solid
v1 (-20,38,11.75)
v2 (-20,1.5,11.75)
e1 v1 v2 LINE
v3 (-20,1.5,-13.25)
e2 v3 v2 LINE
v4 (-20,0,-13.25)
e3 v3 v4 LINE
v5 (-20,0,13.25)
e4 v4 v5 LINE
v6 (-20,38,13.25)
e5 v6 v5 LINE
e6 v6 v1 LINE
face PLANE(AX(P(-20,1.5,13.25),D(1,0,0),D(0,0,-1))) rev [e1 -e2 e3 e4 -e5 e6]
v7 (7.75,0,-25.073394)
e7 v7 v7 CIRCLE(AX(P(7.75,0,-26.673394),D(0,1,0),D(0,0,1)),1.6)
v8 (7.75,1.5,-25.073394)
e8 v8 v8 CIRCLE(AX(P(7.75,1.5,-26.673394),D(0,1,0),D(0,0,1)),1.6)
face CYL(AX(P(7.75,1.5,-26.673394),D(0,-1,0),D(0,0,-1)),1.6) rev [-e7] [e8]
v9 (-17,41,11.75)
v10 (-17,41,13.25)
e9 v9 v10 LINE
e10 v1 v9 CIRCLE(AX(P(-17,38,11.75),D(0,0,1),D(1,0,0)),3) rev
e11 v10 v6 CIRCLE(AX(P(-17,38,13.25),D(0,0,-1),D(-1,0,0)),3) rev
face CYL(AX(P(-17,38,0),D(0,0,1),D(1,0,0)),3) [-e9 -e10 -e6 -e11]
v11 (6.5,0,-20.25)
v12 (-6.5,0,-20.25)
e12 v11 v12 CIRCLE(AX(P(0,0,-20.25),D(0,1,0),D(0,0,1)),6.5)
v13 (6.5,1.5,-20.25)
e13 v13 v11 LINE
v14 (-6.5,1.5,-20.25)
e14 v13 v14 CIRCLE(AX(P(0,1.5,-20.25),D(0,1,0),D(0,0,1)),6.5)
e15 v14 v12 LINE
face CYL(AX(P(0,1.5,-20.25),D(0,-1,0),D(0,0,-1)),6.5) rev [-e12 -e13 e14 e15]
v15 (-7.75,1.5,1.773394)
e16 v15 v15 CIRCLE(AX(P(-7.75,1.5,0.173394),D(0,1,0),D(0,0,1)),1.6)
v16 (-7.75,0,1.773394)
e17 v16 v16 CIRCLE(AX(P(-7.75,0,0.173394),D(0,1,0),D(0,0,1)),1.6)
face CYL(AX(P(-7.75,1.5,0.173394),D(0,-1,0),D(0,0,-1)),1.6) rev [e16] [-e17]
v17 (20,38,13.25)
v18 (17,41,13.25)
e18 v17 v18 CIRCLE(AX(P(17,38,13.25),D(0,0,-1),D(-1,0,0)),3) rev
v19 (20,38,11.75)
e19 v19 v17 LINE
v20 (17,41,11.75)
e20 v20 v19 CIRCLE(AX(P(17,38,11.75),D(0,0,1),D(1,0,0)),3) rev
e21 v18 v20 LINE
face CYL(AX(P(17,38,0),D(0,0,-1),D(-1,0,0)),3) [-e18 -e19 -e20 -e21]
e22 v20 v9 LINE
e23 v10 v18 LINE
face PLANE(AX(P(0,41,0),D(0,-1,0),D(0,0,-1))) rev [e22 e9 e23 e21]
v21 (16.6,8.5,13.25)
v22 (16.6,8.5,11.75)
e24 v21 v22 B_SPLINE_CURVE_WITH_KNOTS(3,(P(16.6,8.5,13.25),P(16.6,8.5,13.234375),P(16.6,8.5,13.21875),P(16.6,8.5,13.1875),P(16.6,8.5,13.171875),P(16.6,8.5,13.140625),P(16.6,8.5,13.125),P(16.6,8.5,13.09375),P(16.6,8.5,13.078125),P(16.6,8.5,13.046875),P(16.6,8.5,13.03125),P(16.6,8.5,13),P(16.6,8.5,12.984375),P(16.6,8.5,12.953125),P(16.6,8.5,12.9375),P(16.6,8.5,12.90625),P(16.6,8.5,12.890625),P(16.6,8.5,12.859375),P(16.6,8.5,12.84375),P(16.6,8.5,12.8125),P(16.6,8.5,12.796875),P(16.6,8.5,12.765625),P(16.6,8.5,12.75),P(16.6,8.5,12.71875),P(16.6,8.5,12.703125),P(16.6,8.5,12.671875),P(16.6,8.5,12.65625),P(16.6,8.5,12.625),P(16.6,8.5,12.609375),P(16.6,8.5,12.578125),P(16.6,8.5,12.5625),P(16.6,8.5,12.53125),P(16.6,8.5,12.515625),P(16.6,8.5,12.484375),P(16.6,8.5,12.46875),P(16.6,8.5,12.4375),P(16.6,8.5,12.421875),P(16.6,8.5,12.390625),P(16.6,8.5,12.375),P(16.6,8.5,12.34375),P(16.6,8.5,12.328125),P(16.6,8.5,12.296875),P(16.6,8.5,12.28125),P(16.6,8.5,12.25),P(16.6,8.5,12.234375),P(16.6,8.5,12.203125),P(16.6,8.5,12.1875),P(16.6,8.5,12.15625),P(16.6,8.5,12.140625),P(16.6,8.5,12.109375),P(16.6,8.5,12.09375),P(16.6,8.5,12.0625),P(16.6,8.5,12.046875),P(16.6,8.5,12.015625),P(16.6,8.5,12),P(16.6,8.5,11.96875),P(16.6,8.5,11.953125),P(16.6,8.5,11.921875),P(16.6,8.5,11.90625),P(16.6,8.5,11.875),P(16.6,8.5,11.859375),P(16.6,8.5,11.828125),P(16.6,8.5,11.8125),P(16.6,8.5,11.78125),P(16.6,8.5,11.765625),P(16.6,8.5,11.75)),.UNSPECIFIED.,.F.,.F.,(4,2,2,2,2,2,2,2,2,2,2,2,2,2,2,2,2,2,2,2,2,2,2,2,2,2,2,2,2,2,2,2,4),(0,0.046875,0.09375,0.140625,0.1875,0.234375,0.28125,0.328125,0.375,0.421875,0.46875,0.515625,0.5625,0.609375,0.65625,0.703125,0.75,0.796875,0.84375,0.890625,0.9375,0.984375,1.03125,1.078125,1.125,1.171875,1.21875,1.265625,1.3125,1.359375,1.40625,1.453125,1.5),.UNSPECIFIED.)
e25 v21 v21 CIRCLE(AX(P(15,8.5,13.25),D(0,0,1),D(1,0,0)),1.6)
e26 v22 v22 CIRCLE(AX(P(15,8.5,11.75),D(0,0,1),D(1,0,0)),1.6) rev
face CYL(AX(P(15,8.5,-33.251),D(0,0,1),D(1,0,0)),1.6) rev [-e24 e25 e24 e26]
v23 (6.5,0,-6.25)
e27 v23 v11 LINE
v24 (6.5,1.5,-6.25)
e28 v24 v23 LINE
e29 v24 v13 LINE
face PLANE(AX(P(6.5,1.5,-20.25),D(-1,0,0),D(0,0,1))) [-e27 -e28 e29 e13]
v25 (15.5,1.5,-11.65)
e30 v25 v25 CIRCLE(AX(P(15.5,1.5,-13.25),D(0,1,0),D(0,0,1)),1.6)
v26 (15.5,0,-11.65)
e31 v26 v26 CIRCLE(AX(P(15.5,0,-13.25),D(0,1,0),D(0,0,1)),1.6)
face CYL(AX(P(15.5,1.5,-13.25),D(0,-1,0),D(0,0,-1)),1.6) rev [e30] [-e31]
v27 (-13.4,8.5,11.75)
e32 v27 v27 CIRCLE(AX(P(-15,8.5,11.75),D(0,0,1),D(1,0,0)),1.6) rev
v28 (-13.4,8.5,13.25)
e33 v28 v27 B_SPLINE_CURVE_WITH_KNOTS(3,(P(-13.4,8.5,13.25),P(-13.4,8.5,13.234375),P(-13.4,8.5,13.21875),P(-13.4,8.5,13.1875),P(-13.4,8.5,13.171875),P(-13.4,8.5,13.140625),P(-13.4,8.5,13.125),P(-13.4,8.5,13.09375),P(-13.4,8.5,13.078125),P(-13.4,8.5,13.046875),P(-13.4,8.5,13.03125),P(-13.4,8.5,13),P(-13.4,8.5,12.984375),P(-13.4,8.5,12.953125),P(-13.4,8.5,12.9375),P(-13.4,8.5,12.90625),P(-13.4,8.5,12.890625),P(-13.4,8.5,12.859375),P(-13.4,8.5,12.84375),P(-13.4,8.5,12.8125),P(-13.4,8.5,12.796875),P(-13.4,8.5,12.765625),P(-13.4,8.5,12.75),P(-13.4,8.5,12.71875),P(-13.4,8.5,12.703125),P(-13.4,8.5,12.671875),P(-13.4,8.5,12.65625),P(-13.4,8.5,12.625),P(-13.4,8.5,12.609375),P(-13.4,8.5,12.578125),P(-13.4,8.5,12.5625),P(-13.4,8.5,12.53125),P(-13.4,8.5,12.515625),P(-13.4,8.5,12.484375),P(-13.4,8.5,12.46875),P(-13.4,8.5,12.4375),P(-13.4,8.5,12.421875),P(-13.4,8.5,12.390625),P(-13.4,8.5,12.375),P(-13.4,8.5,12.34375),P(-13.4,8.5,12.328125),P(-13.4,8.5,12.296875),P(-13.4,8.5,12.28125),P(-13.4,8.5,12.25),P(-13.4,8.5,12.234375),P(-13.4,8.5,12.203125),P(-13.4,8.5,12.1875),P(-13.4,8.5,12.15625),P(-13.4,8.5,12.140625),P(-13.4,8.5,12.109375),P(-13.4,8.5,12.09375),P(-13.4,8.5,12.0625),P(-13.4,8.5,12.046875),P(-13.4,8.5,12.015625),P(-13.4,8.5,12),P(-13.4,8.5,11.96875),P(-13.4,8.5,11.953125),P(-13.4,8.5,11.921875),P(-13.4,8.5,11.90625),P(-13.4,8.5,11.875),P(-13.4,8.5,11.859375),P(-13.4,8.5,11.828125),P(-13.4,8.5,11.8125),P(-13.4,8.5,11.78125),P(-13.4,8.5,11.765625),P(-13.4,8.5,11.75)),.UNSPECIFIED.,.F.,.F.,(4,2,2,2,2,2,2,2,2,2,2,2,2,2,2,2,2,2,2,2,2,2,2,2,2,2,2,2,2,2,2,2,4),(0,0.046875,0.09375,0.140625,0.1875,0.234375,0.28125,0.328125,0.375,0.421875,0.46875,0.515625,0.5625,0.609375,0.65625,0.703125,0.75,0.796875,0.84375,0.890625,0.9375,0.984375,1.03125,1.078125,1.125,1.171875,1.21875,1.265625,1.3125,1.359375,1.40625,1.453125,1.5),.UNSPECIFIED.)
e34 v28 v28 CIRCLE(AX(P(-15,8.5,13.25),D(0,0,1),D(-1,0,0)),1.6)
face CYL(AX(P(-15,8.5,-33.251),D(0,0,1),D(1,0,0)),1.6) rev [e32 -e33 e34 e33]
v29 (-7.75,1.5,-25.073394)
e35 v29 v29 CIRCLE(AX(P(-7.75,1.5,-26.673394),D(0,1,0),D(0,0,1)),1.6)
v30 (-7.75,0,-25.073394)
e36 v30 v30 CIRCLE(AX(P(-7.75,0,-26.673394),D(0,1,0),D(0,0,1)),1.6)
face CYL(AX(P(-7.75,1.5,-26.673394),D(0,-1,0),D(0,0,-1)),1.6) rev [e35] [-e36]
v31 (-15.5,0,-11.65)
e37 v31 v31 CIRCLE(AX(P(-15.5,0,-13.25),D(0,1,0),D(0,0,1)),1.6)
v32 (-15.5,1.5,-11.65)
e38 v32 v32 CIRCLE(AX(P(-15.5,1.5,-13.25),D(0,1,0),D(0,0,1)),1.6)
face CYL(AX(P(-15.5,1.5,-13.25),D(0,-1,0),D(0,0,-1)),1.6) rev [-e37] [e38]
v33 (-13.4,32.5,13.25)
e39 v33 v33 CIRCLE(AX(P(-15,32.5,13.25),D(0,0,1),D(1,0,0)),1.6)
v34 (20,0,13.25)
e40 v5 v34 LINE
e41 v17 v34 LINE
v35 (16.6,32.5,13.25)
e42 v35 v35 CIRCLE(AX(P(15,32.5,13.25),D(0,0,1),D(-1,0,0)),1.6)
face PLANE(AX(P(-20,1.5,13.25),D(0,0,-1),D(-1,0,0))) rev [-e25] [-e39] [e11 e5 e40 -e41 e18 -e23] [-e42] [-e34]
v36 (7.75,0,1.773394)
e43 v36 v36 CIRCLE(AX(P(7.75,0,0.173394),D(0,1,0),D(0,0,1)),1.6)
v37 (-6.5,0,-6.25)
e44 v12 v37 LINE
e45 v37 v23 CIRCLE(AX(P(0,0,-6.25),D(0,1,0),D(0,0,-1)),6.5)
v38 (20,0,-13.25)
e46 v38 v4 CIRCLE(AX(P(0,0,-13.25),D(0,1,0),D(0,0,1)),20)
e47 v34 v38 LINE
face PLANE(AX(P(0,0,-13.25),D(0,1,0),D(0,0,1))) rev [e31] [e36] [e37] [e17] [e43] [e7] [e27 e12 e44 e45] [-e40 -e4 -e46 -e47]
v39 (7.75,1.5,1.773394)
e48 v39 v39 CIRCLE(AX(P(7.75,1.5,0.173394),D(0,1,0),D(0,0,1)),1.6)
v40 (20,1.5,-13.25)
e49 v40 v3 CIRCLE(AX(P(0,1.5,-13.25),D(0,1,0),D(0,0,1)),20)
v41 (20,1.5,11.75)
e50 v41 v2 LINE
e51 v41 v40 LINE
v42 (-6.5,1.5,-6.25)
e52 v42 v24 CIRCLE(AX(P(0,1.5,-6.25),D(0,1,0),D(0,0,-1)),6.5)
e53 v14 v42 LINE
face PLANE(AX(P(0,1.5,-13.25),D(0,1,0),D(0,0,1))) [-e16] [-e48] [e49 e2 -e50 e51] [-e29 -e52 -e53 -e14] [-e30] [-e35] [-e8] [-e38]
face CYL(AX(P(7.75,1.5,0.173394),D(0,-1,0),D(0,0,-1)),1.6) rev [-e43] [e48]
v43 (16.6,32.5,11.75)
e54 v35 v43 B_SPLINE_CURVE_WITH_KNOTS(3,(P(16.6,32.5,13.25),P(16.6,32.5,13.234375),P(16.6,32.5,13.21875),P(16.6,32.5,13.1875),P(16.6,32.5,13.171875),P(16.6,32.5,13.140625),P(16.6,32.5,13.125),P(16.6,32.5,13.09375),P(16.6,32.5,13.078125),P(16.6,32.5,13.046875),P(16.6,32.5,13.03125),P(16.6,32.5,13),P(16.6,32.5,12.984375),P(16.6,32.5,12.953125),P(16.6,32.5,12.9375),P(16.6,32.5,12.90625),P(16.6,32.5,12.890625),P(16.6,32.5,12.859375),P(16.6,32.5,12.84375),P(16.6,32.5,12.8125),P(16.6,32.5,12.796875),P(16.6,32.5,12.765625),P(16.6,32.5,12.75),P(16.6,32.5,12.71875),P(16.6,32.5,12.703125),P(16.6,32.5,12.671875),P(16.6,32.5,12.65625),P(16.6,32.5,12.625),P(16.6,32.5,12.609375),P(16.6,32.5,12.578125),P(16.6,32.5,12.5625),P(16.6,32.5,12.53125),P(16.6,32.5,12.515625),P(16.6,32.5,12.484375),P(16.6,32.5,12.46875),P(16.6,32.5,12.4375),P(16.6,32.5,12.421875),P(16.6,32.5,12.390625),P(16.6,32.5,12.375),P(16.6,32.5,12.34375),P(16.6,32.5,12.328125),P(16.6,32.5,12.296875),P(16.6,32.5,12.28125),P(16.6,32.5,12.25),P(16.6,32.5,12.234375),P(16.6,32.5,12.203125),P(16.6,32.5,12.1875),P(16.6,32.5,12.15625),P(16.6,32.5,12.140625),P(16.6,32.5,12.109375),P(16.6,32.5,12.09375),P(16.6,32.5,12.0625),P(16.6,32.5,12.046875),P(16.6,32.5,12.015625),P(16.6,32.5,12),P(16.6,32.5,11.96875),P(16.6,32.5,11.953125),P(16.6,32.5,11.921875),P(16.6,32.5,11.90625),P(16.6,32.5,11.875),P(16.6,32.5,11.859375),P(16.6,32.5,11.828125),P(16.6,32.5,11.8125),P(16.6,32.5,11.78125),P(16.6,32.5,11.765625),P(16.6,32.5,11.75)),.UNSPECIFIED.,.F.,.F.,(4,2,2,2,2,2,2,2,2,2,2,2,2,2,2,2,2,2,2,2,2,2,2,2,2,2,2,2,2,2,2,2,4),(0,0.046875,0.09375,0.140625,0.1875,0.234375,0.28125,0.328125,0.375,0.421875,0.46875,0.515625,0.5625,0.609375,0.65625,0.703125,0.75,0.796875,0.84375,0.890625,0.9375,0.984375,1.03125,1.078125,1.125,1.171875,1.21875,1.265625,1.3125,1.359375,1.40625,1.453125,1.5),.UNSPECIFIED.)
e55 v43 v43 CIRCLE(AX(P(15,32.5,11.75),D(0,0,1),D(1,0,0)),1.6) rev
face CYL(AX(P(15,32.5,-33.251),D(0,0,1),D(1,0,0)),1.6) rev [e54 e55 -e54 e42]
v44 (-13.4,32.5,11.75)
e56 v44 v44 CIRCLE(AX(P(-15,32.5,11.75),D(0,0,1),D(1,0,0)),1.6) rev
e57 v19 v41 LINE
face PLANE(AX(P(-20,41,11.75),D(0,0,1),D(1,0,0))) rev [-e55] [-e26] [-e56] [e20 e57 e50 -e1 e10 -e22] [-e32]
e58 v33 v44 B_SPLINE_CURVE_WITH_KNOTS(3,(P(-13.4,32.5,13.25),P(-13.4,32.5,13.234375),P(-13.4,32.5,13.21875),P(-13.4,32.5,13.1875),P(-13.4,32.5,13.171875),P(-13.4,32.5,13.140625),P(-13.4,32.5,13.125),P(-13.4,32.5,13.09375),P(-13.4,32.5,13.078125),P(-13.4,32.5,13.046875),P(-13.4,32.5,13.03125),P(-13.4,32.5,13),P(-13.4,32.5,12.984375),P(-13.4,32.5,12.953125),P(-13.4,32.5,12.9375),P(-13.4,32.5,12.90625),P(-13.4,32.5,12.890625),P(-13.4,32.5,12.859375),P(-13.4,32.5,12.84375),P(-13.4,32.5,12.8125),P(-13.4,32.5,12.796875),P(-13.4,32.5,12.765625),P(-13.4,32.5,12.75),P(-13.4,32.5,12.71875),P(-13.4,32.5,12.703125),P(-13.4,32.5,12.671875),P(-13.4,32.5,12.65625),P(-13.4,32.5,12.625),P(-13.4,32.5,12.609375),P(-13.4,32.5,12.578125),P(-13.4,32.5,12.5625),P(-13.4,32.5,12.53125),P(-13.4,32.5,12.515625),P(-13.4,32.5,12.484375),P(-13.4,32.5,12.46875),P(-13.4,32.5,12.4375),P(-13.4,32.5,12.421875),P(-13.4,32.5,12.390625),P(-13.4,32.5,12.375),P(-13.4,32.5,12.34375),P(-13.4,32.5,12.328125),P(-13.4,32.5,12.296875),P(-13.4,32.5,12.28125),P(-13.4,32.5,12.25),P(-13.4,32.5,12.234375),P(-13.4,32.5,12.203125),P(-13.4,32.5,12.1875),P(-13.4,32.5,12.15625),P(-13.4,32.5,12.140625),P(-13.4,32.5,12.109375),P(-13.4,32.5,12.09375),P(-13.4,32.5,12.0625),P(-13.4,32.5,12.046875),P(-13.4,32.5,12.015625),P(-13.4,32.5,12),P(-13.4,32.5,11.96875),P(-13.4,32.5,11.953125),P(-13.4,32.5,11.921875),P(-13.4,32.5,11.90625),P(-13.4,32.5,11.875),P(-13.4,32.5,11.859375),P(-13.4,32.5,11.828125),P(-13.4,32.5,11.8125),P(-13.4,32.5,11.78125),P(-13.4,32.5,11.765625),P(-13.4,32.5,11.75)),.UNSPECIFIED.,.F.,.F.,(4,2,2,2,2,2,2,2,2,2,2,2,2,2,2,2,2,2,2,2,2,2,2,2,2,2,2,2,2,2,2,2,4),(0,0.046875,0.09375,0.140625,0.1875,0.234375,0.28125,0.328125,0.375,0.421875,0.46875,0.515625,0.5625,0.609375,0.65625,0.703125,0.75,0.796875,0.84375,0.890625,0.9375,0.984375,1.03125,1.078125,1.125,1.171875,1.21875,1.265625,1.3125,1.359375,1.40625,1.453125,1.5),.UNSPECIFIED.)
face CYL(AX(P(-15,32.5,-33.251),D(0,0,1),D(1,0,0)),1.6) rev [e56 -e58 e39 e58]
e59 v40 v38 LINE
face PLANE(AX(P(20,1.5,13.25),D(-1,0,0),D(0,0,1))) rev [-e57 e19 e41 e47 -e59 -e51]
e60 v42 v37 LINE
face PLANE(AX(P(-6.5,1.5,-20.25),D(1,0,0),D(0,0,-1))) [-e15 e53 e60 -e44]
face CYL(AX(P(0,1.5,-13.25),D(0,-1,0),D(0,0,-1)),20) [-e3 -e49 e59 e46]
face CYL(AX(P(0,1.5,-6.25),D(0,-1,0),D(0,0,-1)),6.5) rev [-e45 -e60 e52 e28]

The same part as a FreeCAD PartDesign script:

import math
import FreeCAD as App
import Part
import Sketcher

V = App.Vector
Q = App.Units.Quantity


def edges_at(feature, points):
    """Names of the edges that pass closest to the given points."""
    edges = feature.Shape.Edges
    near = lambda p: min(range(len(edges)), key=lambda i: edges[i].distToShape(Part.Vertex(*p))[0])
    return sorted({f"Edge{near(p) + 1}" for p in points})

doc = App.newDocument("Part")
body = doc.addObject("PartDesign::Body", "Body")

# Sketch on XZ plane
sketch1 = doc.addObject("Sketcher::SketchObject", "Sketch")
body.addObject(sketch1)
sketch1.AttachmentSupport = (doc.XZ_Plane, [""])
sketch1.MapMode = "FlatFace"
sketch1.addGeometry(Part.LineSegment(V(-20, 13.2, 0), V(20, 13.2, 0)), False)
sketch1.addGeometry(Part.LineSegment(V(20, 13.2, 0), V(20, -13.2, 0)), False)
sketch1.addGeometry(Part.ArcOfCircle(Part.Circle(V(0, -13.2, 0), V(0, 0, 1), 20), math.radians(180), math.radians(360)), False)
sketch1.addGeometry(Part.LineSegment(V(-20, -13.2, 0), V(-20, 13.2, 0)), False)
sketch1.addGeometry(Part.Circle(V(-7.8, 0.2, 0), V(0, 0, 1), 1.6), False)
sketch1.addGeometry(Part.Circle(V(-15.5, -13.2, 0), V(0, 0, 1), 1.6), False)
sketch1.addGeometry(Part.Circle(V(7.8, 0.2, 0), V(0, 0, 1), 1.6), False)
sketch1.addGeometry(Part.Circle(V(15.5, -13.2, 0), V(0, 0, 1), 1.6), False)
sketch1.addGeometry(Part.Circle(V(-7.8, -26.7, 0), V(0, 0, 1), 1.6), False)
sketch1.addGeometry(Part.LineSegment(V(-6.5, -6.2, 0), V(-6.5, -20.2, 0)), False)
sketch1.addGeometry(Part.ArcOfCircle(Part.Circle(V(0, -20.2, 0), V(0, 0, 1), 6.5), math.radians(180), math.radians(360)), False)
sketch1.addGeometry(Part.LineSegment(V(6.5, -20.2, 0), V(6.5, -6.2, 0)), False)
sketch1.addGeometry(Part.ArcOfCircle(Part.Circle(V(0, -6.2, 0), V(0, 0, 1), 6.5), math.radians(0), math.radians(180)), False)
sketch1.addGeometry(Part.Circle(V(7.8, -26.7, 0), V(0, 0, 1), 1.6), False)
sketch1.addConstraint(Sketcher.Constraint("Coincident", 0, 2, 1, 1))
sketch1.addConstraint(Sketcher.Constraint("Tangent", 1, 2, 2, 2))
sketch1.addConstraint(Sketcher.Constraint("Tangent", 2, 1, 3, 1))
sketch1.addConstraint(Sketcher.Constraint("Coincident", 3, 2, 0, 1))
sketch1.addConstraint(Sketcher.Constraint("Tangent", 9, 2, 10, 1))
sketch1.addConstraint(Sketcher.Constraint("Tangent", 10, 2, 11, 1))
sketch1.addConstraint(Sketcher.Constraint("Tangent", 11, 2, 12, 1))
sketch1.addConstraint(Sketcher.Constraint("Tangent", 12, 2, 9, 1))
sketch1.addConstraint(Sketcher.Constraint("Horizontal", 0))
sketch1.addConstraint(Sketcher.Constraint("Vertical", 1))
sketch1.addConstraint(Sketcher.Constraint("Vertical", 3))
sketch1.addConstraint(Sketcher.Constraint("Vertical", 9))
sketch1.addConstraint(Sketcher.Constraint("Vertical", 11))
sketch1.addConstraint(Sketcher.Constraint("Equal", 4, 5))
sketch1.addConstraint(Sketcher.Constraint("Equal", 5, 6))
sketch1.addConstraint(Sketcher.Constraint("Equal", 6, 7))
sketch1.addConstraint(Sketcher.Constraint("Equal", 7, 8))
sketch1.addConstraint(Sketcher.Constraint("Equal", 8, 13))
sketch1.addConstraint(Sketcher.Constraint("Symmetric", 0, 2, 2, 1, -1, 1))
sketch1.addConstraint(Sketcher.Constraint("Symmetric", 4, 3, 6, 3, -2))
sketch1.addConstraint(Sketcher.Constraint("Symmetric", 5, 3, 7, 3, -2))
sketch1.addConstraint(Sketcher.Constraint("Symmetric", 8, 3, 13, 3, -2))
sketch1.addConstraint(Sketcher.Constraint("PointOnObject", 10, 3, -2))
sketch1.addConstraint(Sketcher.Constraint("Horizontal", 2, 3, 5, 3))
sketch1.addConstraint(Sketcher.Constraint("Vertical", 4, 3, 8, 3))
sketch1.addConstraint(Sketcher.Constraint("Radius", 2, Q("20 mm")))
sketch1.addConstraint(Sketcher.Constraint("Diameter", 4, Q("3.2 mm")))
sketch1.addConstraint(Sketcher.Constraint("Radius", 10, Q("6.5 mm")))
sketch1.addConstraint(Sketcher.Constraint("DistanceY", 9, 2, 9, 1, Q("14 mm")))
sketch1.addConstraint(Sketcher.Constraint("DistanceY", 1, 2, 1, 1, Q("26.5 mm")))
sketch1.addConstraint(Sketcher.Constraint("DistanceX", 5, 3, 7, 3, Q("31 mm")))
sketch1.addConstraint(Sketcher.Constraint("DistanceY", 10, 3, 2, 3, Q("7 mm")))
sketch1.addConstraint(Sketcher.Constraint("DistanceX", 4, 3, 6, 3, Q("15.5 mm")))
sketch1.addConstraint(Sketcher.Constraint("DistanceY", -1, 1, 4, 3, Q("0.173394 mm")))
sketch1.addConstraint(Sketcher.Constraint("DistanceY", 8, 3, -1, 1, Q("26.673394 mm")))
pad1 = doc.addObject("PartDesign::Pad", "Pad")
body.addObject(pad1)
pad1.Profile = sketch1
pad1.Length = 1.5
pad1.Reversed = True

# Sketch on XZ plane
sketch2 = doc.addObject("Sketcher::SketchObject", "Sketch001")
body.addObject(sketch2)
sketch2.AttachmentSupport = (doc.XZ_Plane, [""])
sketch2.MapMode = "FlatFace"
sketch2.AttachmentOffset = App.Placement(V(0, 0, -1.5), App.Rotation())
sketch2.addGeometry(Part.LineSegment(V(-20, 11.8, 0), V(-20, 13.2, 0)), False)
sketch2.addGeometry(Part.LineSegment(V(-20, 13.2, 0), V(20, 13.2, 0)), False)
sketch2.addGeometry(Part.LineSegment(V(20, 13.2, 0), V(20, 11.8, 0)), False)
sketch2.addGeometry(Part.LineSegment(V(20, 11.8, 0), V(-20, 11.8, 0)), False)
sketch2.addConstraint(Sketcher.Constraint("Coincident", 0, 2, 1, 1))
sketch2.addConstraint(Sketcher.Constraint("Coincident", 1, 2, 2, 1))
sketch2.addConstraint(Sketcher.Constraint("Coincident", 2, 2, 3, 1))
sketch2.addConstraint(Sketcher.Constraint("Coincident", 3, 2, 0, 1))
sketch2.addConstraint(Sketcher.Constraint("Vertical", 0))
sketch2.addConstraint(Sketcher.Constraint("Horizontal", 1))
sketch2.addConstraint(Sketcher.Constraint("Vertical", 2))
sketch2.addConstraint(Sketcher.Constraint("Horizontal", 3))
sketch2.addConstraint(Sketcher.Constraint("DistanceX", 1, 1, 1, 2, Q("40 mm")))
sketch2.addConstraint(Sketcher.Constraint("DistanceY", 0, 1, 0, 2, Q("1.5 mm")))
sketch2.addConstraint(Sketcher.Constraint("DistanceX", 0, 2, -1, 1, Q("20 mm")))
sketch2.addConstraint(Sketcher.Constraint("DistanceY", -1, 1, 0, 2, Q("13.25 mm")))
pad2 = doc.addObject("PartDesign::Pad", "Pad001")
body.addObject(pad2)
pad2.Profile = sketch2
pad2.Length = 39.5
pad2.Reversed = True

# Sketch on XY plane
sketch3 = doc.addObject("Sketcher::SketchObject", "Sketch002")
body.addObject(sketch3)
sketch3.AttachmentSupport = (doc.XY_Plane, [""])
sketch3.MapMode = "FlatFace"
sketch3.AttachmentOffset = App.Placement(V(0, 0, 13.25), App.Rotation())
sketch3.addGeometry(Part.Circle(V(-15, 32.5, 0), V(0, 0, 1), 1.6), False)
sketch3.addConstraint(Sketcher.Constraint("Diameter", 0, Q("3.2 mm")))
sketch3.addConstraint(Sketcher.Constraint("DistanceX", 0, 3, -1, 1, Q("15 mm")))
sketch3.addConstraint(Sketcher.Constraint("DistanceY", -1, 1, 0, 3, Q("32.5 mm")))
pocket1 = doc.addObject("PartDesign::Pocket", "Pocket")
body.addObject(pocket1)
pocket1.Profile = sketch3
pocket1.Type = "UpToFirst"

# Sketch on XY plane
sketch4 = doc.addObject("Sketcher::SketchObject", "Sketch003")
body.addObject(sketch4)
sketch4.AttachmentSupport = (doc.XY_Plane, [""])
sketch4.MapMode = "FlatFace"
sketch4.AttachmentOffset = App.Placement(V(0, 0, 13.25), App.Rotation())
sketch4.addGeometry(Part.Circle(V(15, 32.5, 0), V(0, 0, 1), 1.6), False)
sketch4.addConstraint(Sketcher.Constraint("Diameter", 0, Q("3.2 mm")))
sketch4.addConstraint(Sketcher.Constraint("DistanceX", -1, 1, 0, 3, Q("15 mm")))
sketch4.addConstraint(Sketcher.Constraint("DistanceY", -1, 1, 0, 3, Q("32.5 mm")))
pocket2 = doc.addObject("PartDesign::Pocket", "Pocket001")
body.addObject(pocket2)
pocket2.Profile = sketch4
pocket2.Type = "UpToFirst"

# Sketch on XY plane
sketch5 = doc.addObject("Sketcher::SketchObject", "Sketch004")
body.addObject(sketch5)
sketch5.AttachmentSupport = (doc.XY_Plane, [""])
sketch5.MapMode = "FlatFace"
sketch5.AttachmentOffset = App.Placement(V(0, 0, 13.25), App.Rotation())
sketch5.addGeometry(Part.Circle(V(15, 8.5, 0), V(0, 0, 1), 1.6), False)
sketch5.addConstraint(Sketcher.Constraint("Diameter", 0, Q("3.2 mm")))
sketch5.addConstraint(Sketcher.Constraint("DistanceX", -1, 1, 0, 3, Q("15 mm")))
sketch5.addConstraint(Sketcher.Constraint("DistanceY", -1, 1, 0, 3, Q("8.5 mm")))
pocket3 = doc.addObject("PartDesign::Pocket", "Pocket002")
body.addObject(pocket3)
pocket3.Profile = sketch5
pocket3.Type = "UpToFirst"

# Sketch on XY plane
sketch6 = doc.addObject("Sketcher::SketchObject", "Sketch005")
body.addObject(sketch6)
sketch6.AttachmentSupport = (doc.XY_Plane, [""])
sketch6.MapMode = "FlatFace"
sketch6.AttachmentOffset = App.Placement(V(0, 0, 13.25), App.Rotation())
sketch6.addGeometry(Part.Circle(V(-15, 8.5, 0), V(0, 0, 1), 1.6), False)
sketch6.addConstraint(Sketcher.Constraint("Diameter", 0, Q("3.2 mm")))
sketch6.addConstraint(Sketcher.Constraint("DistanceX", 0, 3, -1, 1, Q("15 mm")))
sketch6.addConstraint(Sketcher.Constraint("DistanceY", -1, 1, 0, 3, Q("8.5 mm")))
pocket4 = doc.addObject("PartDesign::Pocket", "Pocket003")
body.addObject(pocket4)
pocket4.Profile = sketch6
pocket4.Type = "UpToFirst"
doc.recompute()

fillet = doc.addObject("PartDesign::Fillet", "Fillet")
body.addObject(fillet)
fillet.Base = (pocket4, edges_at(pocket4, [(-20, 41, 12.5), (20, 41, 12.5)]))
fillet.Radius = 3

doc.recompute()
